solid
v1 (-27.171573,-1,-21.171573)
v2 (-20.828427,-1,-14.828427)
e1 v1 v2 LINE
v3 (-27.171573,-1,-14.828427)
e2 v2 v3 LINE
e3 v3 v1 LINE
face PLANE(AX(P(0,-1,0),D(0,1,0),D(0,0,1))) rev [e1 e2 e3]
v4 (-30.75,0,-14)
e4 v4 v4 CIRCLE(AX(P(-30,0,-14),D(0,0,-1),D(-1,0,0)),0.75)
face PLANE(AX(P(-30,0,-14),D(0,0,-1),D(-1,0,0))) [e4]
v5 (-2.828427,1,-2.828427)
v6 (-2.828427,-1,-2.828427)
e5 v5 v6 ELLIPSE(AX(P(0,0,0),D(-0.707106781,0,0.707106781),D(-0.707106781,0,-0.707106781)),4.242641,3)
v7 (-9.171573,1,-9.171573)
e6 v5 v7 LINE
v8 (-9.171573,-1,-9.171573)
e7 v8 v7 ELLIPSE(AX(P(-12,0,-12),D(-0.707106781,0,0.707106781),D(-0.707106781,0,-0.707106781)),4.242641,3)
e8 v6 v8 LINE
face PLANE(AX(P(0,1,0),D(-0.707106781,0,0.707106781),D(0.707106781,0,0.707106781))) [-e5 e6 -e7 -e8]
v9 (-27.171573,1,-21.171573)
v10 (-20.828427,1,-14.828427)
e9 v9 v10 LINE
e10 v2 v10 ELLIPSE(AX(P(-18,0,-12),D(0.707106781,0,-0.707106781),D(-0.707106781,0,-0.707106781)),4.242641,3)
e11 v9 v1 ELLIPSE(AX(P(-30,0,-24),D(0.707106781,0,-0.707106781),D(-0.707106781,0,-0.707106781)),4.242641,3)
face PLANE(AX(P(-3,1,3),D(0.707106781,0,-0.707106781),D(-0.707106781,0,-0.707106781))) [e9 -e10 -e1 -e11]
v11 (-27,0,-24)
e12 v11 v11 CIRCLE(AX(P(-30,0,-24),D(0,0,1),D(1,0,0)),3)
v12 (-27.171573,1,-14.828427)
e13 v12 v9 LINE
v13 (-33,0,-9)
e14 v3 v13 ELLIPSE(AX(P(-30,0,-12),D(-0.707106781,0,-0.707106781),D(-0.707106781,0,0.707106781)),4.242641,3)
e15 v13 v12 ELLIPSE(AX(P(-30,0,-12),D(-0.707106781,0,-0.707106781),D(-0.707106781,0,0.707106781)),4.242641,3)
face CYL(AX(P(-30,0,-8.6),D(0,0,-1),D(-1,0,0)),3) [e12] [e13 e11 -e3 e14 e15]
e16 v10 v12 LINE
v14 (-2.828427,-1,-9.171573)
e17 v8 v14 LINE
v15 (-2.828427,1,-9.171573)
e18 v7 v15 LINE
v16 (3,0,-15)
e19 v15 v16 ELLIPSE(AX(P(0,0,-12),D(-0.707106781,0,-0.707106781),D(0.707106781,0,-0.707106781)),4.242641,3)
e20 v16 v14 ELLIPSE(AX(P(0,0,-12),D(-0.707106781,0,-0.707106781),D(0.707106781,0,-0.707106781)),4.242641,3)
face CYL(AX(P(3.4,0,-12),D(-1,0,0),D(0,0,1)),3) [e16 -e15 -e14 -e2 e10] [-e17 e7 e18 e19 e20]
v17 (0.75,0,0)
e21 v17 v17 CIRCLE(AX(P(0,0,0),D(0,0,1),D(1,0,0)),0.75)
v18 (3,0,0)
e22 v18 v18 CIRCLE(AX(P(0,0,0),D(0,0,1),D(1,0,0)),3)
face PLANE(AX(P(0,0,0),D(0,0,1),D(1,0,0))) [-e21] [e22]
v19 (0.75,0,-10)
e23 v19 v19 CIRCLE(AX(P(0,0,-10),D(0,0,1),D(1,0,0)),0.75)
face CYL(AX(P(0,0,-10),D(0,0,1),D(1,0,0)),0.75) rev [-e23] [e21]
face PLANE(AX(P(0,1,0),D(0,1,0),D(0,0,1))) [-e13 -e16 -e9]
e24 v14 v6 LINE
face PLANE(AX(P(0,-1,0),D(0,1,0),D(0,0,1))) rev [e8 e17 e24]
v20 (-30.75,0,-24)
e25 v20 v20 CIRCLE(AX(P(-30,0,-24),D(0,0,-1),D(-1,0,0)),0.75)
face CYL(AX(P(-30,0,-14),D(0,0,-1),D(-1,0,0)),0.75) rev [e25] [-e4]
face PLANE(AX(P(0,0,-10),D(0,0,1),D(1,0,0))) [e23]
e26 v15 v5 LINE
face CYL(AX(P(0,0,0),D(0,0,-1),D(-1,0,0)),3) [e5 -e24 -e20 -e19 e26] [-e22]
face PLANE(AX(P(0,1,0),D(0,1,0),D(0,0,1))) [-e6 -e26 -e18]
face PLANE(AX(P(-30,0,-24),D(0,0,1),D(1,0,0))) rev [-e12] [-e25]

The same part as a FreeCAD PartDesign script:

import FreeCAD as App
import Part
import Sketcher
Q = App.Units.Quantity

doc = App.newDocument("Part")
body = doc.addObject("PartDesign::Body", "Body")

# Sketch on XY plane
sketch1 = doc.addObject("Sketcher::SketchObject", "Sketch")
body.addObject(sketch1)
sketch1.AttachmentSupport = (doc.XY_Plane, [""])
sketch1.MapMode = "FlatFace"
sketch1.addGeometry(Part.Circle(App.Vector(0, 0, 0), App.Vector(0, 0, 1), 3), False)
sketch1.addConstraint([
    Sketcher.Constraint("Coincident", 0, 3, -1, 1),
    Sketcher.Constraint("Diameter", 0, Q("6 mm")),
])

# Sketch on XZ plane
sketch2 = doc.addObject("Sketcher::SketchObject", "Sketch001")
body.addObject(sketch2)
sketch2.AttachmentSupport = (doc.XZ_Plane, [""])
sketch2.MapMode = "FlatFace"
sketch2.addGeometry([
    Part.LineSegment(App.Vector(0, 0, 0), App.Vector(0, -12, 0)),
    Part.LineSegment(App.Vector(0, -12, 0), App.Vector(-30, -12, 0)),
    Part.LineSegment(App.Vector(-30, -12, 0), App.Vector(-30, -24, 0)),
], False)
sketch2.addConstraint([
    Sketcher.Constraint("Coincident", 0, 2, 1, 1),
    Sketcher.Constraint("Coincident", 1, 2, 2, 1),
    Sketcher.Constraint("Vertical", 0),
    Sketcher.Constraint("Horizontal", 1),
    Sketcher.Constraint("Vertical", 2),
    Sketcher.Constraint("Coincident", 0, 1, -1, 1),
    Sketcher.Constraint("Equal", 0, 2),
    Sketcher.Constraint("DistanceX", 1, 2, 1, 1, Q("30 mm")),
    Sketcher.Constraint("DistanceY", 0, 2, 0, 1, Q("12 mm")),
])
doc.recompute()

additivepipe = doc.addObject("PartDesign::AdditivePipe", "AdditivePipe")
body.addObject(additivepipe)
additivepipe.Profile = sketch1
additivepipe.Spine = (sketch2, ["Edge1", "Edge2", "Edge3"])
additivepipe.Transition = "Right corner"

# Sketch on XZ plane
sketch3 = doc.addObject("Sketcher::SketchObject", "Sketch002")
body.addObject(sketch3)
sketch3.AttachmentSupport = (doc.XZ_Plane, [""])
sketch3.MapMode = "FlatFace"
sketch3.addGeometry([
    Part.LineSegment(App.Vector(-30, -12, 0), App.Vector(-18, -12, 0)),  # 0
    Part.LineSegment(App.Vector(-18, -12, 0), App.Vector(-30, -24, 0)),  # 1
    Part.LineSegment(App.Vector(-30, -24, 0), App.Vector(-30, -12, 0)),  # 2
    Part.LineSegment(App.Vector(-12, -12, 0), App.Vector(0, 0, 0)),  # 3
    Part.LineSegment(App.Vector(0, 0, 0), App.Vector(0, -12, 0)),  # 4
    Part.LineSegment(App.Vector(0, -12, 0), App.Vector(-12, -12, 0)),  # 5
], False)
sketch3.addConstraint([
    Sketcher.Constraint("Coincident", 0, 2, 1, 1),
    Sketcher.Constraint("Coincident", 1, 2, 2, 1),
    Sketcher.Constraint("Coincident", 2, 2, 0, 1),
    Sketcher.Constraint("Coincident", 3, 2, 4, 1),
    Sketcher.Constraint("Coincident", 4, 2, 5, 1),
    Sketcher.Constraint("Coincident", 5, 2, 3, 1),
    Sketcher.Constraint("Horizontal", 0),
    Sketcher.Constraint("Vertical", 2),
    Sketcher.Constraint("Vertical", 4),
    Sketcher.Constraint("Horizontal", 5),
    Sketcher.Constraint("Coincident", 3, 2, -1, 1),
    Sketcher.Constraint("Parallel", 1, 3),
    Sketcher.Constraint("Horizontal", 2, 2, 4, 2),
    Sketcher.Constraint("Equal", 0, 5),
    Sketcher.Constraint("Equal", 5, 2),
    Sketcher.Constraint("DistanceX", 0, 1, 0, 2, Q("12 mm")),
    Sketcher.Constraint("DistanceX", 0, 2, -1, 1, Q("18 mm")),
])
pad1 = doc.addObject("PartDesign::Pad", "Pad")
body.addObject(pad1)
pad1.Profile = sketch3
pad1.Length = 2
pad1.Midplane = True

# Sketch on XY plane
sketch4 = doc.addObject("Sketcher::SketchObject", "Sketch003")
body.addObject(sketch4)
sketch4.AttachmentSupport = (doc.XY_Plane, [""])
sketch4.MapMode = "FlatFace"
sketch4.addGeometry(Part.Circle(App.Vector(0, 0, 0), App.Vector(0, 0, 1), 0.8), False)
sketch4.addConstraint([
    Sketcher.Constraint("Coincident", 0, 3, -1, 1),
    Sketcher.Constraint("Diameter", 0, Q("1.5 mm")),
])
pocket1 = doc.addObject("PartDesign::Pocket", "Pocket")
body.addObject(pocket1)
pocket1.Profile = sketch4
pocket1.Length = 10

# Sketch on XY plane
sketch5 = doc.addObject("Sketcher::SketchObject", "Sketch004")
body.addObject(sketch5)
sketch5.AttachmentSupport = (doc.XY_Plane, [""])
sketch5.MapMode = "FlatFace"
sketch5.AttachmentOffset = App.Placement(App.Vector(0, 0, -24), App.Rotation())
sketch5.addGeometry(Part.Circle(App.Vector(-30, 0, 0), App.Vector(0, 0, 1), 0.8), False)
sketch5.addConstraint([
    Sketcher.Constraint("PointOnObject", 0, 3, -1),
    Sketcher.Constraint("Diameter", 0, Q("1.5 mm")),
    Sketcher.Constraint("DistanceX", 0, 3, -1, 1, Q("30 mm")),
])
pocket2 = doc.addObject("PartDesign::Pocket", "Pocket001")
body.addObject(pocket2)
pocket2.Profile = sketch5
pocket2.Length = 10
pocket2.Reversed = True

doc.recompute()
